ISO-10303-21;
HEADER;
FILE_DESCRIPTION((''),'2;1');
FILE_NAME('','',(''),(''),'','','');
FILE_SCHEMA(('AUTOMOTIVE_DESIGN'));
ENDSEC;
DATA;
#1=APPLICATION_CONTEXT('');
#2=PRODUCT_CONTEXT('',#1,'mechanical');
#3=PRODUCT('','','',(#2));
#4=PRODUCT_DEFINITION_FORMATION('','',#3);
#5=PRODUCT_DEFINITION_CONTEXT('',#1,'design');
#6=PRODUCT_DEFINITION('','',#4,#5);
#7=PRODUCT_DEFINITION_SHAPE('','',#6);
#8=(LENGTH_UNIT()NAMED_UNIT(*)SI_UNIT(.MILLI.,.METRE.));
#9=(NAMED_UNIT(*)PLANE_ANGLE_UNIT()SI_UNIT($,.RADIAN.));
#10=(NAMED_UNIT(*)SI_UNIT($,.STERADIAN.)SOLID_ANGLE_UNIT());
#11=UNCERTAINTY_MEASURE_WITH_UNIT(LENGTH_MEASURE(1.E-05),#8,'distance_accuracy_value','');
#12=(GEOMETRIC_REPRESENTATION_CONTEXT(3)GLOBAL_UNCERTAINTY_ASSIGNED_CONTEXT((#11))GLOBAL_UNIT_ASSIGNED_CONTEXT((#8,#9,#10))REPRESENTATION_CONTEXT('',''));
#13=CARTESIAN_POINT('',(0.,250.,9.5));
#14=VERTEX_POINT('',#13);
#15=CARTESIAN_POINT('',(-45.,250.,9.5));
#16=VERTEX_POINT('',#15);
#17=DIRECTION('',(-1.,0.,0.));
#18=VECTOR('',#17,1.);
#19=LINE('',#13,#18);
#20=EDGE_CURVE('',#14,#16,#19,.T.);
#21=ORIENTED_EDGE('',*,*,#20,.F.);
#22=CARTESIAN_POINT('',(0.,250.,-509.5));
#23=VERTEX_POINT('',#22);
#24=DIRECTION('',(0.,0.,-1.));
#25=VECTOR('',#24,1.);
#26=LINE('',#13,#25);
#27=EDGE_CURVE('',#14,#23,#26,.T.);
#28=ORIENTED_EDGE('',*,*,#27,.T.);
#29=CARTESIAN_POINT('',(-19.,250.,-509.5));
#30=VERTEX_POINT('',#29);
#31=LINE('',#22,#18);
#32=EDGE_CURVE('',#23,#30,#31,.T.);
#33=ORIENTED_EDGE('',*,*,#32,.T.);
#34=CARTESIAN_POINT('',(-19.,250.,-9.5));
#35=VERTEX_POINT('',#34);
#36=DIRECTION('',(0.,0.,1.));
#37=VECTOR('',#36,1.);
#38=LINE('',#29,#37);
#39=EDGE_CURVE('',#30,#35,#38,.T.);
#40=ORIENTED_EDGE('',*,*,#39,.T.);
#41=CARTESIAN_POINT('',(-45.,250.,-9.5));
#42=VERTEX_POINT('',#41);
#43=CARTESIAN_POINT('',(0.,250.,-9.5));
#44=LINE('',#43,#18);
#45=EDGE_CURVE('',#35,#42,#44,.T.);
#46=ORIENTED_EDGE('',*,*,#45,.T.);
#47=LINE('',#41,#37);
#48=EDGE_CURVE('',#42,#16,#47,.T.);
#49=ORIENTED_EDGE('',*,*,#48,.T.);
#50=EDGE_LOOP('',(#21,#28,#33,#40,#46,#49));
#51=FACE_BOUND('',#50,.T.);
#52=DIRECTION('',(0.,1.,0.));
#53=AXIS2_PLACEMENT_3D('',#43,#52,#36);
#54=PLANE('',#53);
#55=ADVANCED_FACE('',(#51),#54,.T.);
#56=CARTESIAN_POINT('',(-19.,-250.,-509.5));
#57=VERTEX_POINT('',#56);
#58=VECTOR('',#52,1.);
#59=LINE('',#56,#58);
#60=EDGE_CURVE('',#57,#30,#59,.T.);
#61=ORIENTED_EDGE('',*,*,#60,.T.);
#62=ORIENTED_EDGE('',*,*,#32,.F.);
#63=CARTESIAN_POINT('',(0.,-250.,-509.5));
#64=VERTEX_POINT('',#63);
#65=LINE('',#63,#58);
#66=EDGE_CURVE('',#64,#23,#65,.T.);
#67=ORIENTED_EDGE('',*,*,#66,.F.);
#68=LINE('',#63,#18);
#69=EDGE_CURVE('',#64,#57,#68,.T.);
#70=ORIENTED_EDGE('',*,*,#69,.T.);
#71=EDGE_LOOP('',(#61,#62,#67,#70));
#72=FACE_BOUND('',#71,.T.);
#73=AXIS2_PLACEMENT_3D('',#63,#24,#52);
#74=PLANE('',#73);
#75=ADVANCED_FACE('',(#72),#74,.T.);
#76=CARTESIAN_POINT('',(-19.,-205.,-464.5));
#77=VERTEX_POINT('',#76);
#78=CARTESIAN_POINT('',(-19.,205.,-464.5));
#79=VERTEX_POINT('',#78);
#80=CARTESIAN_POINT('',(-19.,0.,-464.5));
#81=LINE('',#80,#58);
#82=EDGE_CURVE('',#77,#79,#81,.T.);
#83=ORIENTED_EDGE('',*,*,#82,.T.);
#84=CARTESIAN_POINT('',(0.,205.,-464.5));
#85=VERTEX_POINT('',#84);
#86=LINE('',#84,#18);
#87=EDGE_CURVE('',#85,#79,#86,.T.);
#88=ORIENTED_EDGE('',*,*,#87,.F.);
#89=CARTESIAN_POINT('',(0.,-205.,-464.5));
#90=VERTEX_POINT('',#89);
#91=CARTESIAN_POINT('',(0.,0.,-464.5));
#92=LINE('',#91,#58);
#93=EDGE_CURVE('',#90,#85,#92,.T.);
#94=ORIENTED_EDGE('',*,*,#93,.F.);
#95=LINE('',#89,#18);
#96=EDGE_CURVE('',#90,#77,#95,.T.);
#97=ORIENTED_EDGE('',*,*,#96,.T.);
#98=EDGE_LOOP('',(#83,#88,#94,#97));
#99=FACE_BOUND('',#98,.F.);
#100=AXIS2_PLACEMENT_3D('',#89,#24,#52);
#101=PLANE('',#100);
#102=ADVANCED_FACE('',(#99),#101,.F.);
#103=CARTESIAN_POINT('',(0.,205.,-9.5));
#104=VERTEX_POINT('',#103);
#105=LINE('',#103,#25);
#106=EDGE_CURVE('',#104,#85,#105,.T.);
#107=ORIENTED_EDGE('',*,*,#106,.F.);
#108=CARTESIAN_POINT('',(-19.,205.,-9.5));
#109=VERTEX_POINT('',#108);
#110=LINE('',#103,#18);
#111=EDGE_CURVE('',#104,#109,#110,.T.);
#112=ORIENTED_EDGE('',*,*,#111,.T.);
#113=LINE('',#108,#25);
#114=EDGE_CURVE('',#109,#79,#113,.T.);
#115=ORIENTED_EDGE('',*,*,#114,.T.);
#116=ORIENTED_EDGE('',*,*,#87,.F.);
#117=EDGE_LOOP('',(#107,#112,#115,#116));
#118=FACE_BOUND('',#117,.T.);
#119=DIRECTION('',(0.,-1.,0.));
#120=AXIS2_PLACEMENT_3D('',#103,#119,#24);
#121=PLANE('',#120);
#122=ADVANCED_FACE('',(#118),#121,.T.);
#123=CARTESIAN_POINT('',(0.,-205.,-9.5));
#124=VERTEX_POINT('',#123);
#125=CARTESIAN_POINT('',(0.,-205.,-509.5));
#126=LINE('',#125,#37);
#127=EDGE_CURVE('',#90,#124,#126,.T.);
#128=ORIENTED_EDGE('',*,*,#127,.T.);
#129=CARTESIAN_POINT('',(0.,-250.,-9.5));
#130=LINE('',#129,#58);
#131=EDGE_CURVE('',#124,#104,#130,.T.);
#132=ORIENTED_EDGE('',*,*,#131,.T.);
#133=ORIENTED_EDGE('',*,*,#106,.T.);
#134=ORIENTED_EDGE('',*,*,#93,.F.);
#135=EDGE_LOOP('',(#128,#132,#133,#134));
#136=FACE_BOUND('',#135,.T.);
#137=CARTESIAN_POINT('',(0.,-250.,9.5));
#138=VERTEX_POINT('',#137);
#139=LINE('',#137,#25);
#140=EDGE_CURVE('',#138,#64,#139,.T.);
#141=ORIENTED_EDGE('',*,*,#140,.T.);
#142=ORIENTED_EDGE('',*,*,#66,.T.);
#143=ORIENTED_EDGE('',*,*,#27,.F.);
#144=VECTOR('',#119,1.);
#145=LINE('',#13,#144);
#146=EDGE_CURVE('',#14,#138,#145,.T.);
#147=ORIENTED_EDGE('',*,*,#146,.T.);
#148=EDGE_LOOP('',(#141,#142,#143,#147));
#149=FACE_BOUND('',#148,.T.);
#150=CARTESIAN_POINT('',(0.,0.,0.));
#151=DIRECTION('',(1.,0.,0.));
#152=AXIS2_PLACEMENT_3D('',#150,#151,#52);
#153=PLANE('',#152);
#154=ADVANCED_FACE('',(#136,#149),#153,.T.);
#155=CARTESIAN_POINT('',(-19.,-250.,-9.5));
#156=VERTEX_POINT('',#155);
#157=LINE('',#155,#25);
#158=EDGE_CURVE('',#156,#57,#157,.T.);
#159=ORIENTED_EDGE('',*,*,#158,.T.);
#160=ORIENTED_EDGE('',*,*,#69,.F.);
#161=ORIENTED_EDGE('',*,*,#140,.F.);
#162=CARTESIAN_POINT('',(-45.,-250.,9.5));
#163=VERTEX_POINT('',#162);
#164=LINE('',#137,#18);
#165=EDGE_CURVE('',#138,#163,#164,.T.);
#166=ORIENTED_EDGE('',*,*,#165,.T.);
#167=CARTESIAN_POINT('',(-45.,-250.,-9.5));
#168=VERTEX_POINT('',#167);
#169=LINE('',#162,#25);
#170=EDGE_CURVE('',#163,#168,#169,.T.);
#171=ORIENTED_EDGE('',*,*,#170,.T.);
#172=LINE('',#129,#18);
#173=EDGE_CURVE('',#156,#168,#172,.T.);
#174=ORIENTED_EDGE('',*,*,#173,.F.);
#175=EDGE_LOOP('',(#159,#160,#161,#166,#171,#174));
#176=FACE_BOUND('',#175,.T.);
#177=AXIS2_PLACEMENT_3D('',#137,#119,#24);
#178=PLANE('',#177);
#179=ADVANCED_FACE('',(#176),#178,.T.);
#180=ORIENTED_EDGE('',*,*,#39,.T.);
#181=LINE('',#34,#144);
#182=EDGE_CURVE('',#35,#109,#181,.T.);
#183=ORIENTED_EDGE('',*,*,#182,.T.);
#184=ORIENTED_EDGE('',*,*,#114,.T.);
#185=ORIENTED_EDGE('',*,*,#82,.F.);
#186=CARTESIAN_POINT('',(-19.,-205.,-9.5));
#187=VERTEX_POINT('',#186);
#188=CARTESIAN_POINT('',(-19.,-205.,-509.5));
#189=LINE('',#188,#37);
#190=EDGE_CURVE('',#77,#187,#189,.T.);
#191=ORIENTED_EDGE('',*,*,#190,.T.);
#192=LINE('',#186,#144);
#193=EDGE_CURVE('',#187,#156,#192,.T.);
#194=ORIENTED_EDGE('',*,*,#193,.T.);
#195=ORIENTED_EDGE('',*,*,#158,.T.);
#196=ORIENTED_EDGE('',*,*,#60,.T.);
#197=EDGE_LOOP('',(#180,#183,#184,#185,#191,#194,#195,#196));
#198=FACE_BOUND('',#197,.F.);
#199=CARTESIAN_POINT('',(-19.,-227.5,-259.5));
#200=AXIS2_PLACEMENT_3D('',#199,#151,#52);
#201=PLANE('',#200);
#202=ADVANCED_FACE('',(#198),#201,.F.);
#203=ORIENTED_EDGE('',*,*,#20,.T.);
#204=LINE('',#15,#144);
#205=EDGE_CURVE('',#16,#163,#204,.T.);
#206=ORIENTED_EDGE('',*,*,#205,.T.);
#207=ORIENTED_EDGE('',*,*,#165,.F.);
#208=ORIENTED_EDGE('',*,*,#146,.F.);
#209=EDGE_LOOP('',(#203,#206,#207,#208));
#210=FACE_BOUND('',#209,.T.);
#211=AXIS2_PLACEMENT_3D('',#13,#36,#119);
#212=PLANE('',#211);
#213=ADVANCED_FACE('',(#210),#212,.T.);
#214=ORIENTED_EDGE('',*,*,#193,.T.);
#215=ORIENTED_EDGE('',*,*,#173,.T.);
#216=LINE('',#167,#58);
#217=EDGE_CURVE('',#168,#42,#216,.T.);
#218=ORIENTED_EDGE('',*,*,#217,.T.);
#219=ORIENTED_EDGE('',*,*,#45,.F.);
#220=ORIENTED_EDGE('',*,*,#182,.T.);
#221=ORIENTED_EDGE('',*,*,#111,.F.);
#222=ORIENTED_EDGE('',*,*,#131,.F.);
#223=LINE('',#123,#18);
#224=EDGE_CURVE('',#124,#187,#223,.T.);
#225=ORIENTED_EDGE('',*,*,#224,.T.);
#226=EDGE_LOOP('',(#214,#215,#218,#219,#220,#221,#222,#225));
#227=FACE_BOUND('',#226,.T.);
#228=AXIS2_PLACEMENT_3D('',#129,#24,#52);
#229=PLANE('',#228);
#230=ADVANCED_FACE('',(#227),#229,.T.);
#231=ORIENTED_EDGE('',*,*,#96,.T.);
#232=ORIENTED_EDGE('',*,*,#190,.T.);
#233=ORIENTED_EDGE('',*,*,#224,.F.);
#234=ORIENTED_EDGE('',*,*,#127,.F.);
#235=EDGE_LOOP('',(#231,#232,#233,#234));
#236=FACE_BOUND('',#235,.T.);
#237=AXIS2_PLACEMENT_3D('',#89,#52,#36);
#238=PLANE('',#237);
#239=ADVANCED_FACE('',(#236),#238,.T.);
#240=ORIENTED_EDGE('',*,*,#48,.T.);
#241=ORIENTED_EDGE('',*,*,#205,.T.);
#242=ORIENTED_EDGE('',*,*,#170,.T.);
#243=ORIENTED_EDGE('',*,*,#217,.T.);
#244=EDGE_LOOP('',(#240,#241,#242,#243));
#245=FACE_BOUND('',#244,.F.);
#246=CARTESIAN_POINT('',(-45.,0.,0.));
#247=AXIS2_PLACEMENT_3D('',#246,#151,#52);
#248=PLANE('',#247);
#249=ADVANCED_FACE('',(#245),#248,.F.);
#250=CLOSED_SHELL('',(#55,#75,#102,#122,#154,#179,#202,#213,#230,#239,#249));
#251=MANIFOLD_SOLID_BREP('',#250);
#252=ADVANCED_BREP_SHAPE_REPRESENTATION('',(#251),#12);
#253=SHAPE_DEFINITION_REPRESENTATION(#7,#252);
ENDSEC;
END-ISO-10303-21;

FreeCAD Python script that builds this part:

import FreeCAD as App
import Part
import Sketcher
Q = App.Units.Quantity

doc = App.newDocument("Part")
body = doc.addObject("PartDesign::Body", "Body")

# Sketch on YZ plane
sketch1 = body.newObject("Sketcher::SketchObject", "Sketch")
sketch1.AttachmentSupport = (doc.getObject("YZ_Plane"), [""])
sketch1.MapMode = "FlatFace"
sketch1.addGeometry([
    Part.LineSegment(App.Vector(-205, -10, 0), App.Vector(-250, -10, 0)),  # 0
    Part.LineSegment(App.Vector(-250, -10, 0), App.Vector(-250, -510, 0)),  # 1
    Part.LineSegment(App.Vector(-250, -510, 0), App.Vector(250, -510, 0)),  # 2
    Part.LineSegment(App.Vector(250, -510, 0), App.Vector(250, -10, 0)),  # 3
    Part.LineSegment(App.Vector(250, -10, 0), App.Vector(205, -10, 0)),  # 4
    Part.LineSegment(App.Vector(205, -10, 0), App.Vector(205, -464, 0)),  # 5
    Part.LineSegment(App.Vector(205, -464, 0), App.Vector(-205, -464, 0)),  # 6
    Part.LineSegment(App.Vector(-205, -464, 0), App.Vector(-205, -10, 0)),  # 7
], False)
sketch1.addConstraint([
    Sketcher.Constraint("Coincident", 0, 2, 1, 1),
    Sketcher.Constraint("Coincident", 1, 2, 2, 1),
    Sketcher.Constraint("Coincident", 2, 2, 3, 1),
    Sketcher.Constraint("Coincident", 3, 2, 4, 1),
    Sketcher.Constraint("Coincident", 4, 2, 5, 1),
    Sketcher.Constraint("Coincident", 5, 2, 6, 1),
    Sketcher.Constraint("Coincident", 6, 2, 7, 1),
    Sketcher.Constraint("Coincident", 7, 2, 0, 1),
    Sketcher.Constraint("Horizontal", 0),
    Sketcher.Constraint("Vertical", 1),
    Sketcher.Constraint("Horizontal", 2),
    Sketcher.Constraint("Vertical", 3),
    Sketcher.Constraint("Horizontal", 4),
    Sketcher.Constraint("Vertical", 5),
    Sketcher.Constraint("Horizontal", 6),
    Sketcher.Constraint("Vertical", 7),
    Sketcher.Constraint("Symmetric", 0, 2, 3, 2, -2),
    Sketcher.Constraint("Equal", 0, 4),
    Sketcher.Constraint("Equal", 2, 1),
    Sketcher.Constraint("DistanceX", 0, 2, 0, 1, Q("45 mm")),
    Sketcher.Constraint("DistanceX", 2, 1, 2, 2, Q("500 mm")),
    Sketcher.Constraint("DistanceY", 5, 2, 5, 1, Q("455 mm")),
    Sketcher.Constraint("DistanceY", 0, 2, -1, 1, Q("9.5 mm")),
])
pad1 = body.newObject("PartDesign::Pad", "Pad")
pad1.Profile = sketch1
pad1.Length = 19
pad1.Reversed = True

# Sketch on YZ plane
sketch2 = body.newObject("Sketcher::SketchObject", "Sketch001")
sketch2.AttachmentSupport = (doc.getObject("YZ_Plane"), [""])
sketch2.MapMode = "FlatFace"
sketch2.addGeometry([
    Part.LineSegment(App.Vector(250, -10, 0), App.Vector(250, 10, 0)),
    Part.LineSegment(App.Vector(250, 10, 0), App.Vector(-250, 10, 0)),
    Part.LineSegment(App.Vector(-250, 10, 0), App.Vector(-250, -10, 0)),
    Part.LineSegment(App.Vector(-250, -10, 0), App.Vector(250, -10, 0)),
], False)
sketch2.addConstraint([
    Sketcher.Constraint("Coincident", 0, 2, 1, 1),
    Sketcher.Constraint("Coincident", 1, 2, 2, 1),
    Sketcher.Constraint("Coincident", 2, 2, 3, 1),
    Sketcher.Constraint("Coincident", 3, 2, 0, 1),
    Sketcher.Constraint("Vertical", 0),
    Sketcher.Constraint("Horizontal", 1),
    Sketcher.Constraint("Vertical", 2),
    Sketcher.Constraint("Horizontal", 3),
    Sketcher.Constraint("Symmetric", 0, 2, 2, 2, -1, 1),
    Sketcher.Constraint("DistanceX", 1, 2, 1, 1, Q("500 mm")),
    Sketcher.Constraint("DistanceY", 0, 1, 0, 2, Q("19 mm")),
])
pad2 = body.newObject("PartDesign::Pad", "Pad001")
pad2.Profile = sketch2
pad2.Length = 45
pad2.Reversed = True

doc.recompute()
